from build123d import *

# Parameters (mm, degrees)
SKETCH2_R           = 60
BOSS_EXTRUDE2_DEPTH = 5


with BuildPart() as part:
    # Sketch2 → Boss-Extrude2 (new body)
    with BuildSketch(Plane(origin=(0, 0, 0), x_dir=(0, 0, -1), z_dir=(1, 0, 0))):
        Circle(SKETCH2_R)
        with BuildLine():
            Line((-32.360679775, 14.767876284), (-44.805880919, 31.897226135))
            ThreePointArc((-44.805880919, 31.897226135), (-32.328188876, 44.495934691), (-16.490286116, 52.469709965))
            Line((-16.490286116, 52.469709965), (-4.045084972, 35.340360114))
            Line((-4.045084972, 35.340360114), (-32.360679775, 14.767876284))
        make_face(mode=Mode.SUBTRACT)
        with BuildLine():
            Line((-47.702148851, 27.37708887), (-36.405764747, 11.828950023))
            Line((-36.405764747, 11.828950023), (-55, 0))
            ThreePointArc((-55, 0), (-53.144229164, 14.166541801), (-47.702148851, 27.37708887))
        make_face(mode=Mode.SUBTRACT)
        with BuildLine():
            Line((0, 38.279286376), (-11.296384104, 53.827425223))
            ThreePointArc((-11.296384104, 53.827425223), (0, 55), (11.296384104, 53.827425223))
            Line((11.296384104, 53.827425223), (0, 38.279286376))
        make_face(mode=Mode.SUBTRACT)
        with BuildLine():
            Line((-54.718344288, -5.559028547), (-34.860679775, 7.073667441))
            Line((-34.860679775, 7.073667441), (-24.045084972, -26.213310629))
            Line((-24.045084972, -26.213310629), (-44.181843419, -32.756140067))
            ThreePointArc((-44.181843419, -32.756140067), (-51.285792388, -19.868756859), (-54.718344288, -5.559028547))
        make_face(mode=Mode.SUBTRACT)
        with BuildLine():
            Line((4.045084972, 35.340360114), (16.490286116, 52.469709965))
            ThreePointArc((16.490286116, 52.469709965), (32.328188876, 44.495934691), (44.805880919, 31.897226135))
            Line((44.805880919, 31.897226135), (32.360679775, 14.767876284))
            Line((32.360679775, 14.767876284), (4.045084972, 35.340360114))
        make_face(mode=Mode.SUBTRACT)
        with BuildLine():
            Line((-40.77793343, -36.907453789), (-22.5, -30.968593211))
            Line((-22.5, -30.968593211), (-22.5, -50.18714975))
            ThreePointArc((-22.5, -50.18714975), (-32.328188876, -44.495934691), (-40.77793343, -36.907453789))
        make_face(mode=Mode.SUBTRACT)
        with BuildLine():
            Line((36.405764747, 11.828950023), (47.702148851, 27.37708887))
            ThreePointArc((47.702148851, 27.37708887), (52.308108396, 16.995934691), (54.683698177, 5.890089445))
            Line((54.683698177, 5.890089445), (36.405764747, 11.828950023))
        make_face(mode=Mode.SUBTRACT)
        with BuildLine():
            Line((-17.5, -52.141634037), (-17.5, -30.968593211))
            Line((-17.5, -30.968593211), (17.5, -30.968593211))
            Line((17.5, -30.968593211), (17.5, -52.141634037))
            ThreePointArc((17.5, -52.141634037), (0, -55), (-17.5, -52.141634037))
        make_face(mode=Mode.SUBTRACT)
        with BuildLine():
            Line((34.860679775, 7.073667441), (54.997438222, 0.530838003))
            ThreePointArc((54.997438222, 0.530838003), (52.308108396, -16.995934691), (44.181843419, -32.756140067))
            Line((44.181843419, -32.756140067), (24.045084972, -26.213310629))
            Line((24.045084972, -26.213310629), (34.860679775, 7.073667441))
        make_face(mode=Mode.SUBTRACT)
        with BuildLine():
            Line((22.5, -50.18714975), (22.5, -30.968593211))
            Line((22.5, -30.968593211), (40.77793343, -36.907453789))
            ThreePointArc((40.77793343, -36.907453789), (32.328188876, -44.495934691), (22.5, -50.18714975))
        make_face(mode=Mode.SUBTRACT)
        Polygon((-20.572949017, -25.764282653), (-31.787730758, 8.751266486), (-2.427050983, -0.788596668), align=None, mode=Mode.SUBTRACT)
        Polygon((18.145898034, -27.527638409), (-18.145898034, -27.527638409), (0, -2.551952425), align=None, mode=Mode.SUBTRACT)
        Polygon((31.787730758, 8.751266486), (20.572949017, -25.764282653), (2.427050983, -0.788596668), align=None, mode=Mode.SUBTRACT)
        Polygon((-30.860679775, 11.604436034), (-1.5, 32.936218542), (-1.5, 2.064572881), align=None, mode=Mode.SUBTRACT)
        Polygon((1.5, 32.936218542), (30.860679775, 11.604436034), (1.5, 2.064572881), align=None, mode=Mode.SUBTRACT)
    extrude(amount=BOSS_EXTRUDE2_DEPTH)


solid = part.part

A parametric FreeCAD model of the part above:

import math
import FreeCAD as App
import Part
import Sketcher

doc = App.newDocument("Part")
body = doc.addObject("PartDesign::Body", "Body")

sketch1 = body.newObject("Sketcher::SketchObject", "Sketch")
sketch1.AttachmentSupport = (doc.getObject("YZ_Plane"), [""])
sketch1.MapMode = "FlatFace"
sketch1.addGeometry(Part.Circle(App.Vector(0, 0, 0), App.Vector(0, 0, 1), 60), False)
sketch1.addGeometry(Part.ArcOfCircle(Part.Circle(App.Vector(0, 0, 0), App.Vector(0, 0, 1), 55), math.radians(132.14774), math.radians(155.85226)), False)
sketch1.addGeometry(Part.LineSegment(App.Vector(-36.907454, 40.777933, 0), App.Vector(-30.968593, 22.5, 0)), False)
sketch1.addGeometry(Part.LineSegment(App.Vector(-30.968593, 22.5, 0), App.Vector(-50.18715, 22.5, 0)), False)
sketch1.addGeometry(Part.ArcOfCircle(Part.Circle(App.Vector(0, 0, 0), App.Vector(0, 0, 1), 55), math.radians(95.800976), math.radians(126.553005)), False)
sketch1.addGeometry(Part.LineSegment(App.Vector(-5.559029, 54.718344, 0), App.Vector(7.073667, 34.86068, 0)), False)
sketch1.addGeometry(Part.LineSegment(App.Vector(7.073667, 34.86068, 0), App.Vector(-26.213311, 24.045085, 0)), False)
sketch1.addGeometry(Part.LineSegment(App.Vector(-26.213311, 24.045085, 0), App.Vector(-32.75614, 44.181843, 0)), False)
sketch1.addGeometry(Part.LineSegment(App.Vector(-0.788597, 2.427051, 0), App.Vector(-25.764283, 20.572949, 0)), False)
sketch1.addGeometry(Part.LineSegment(App.Vector(-25.764283, 20.572949, 0), App.Vector(8.751266, 31.787731, 0)), False)
sketch1.addGeometry(Part.LineSegment(App.Vector(8.751266, 31.787731, 0), App.Vector(-0.788597, 2.427051, 0)), False)
sketch1.addGeometry(Part.ArcOfCircle(Part.Circle(App.Vector(0, 0, 0), App.Vector(0, 0, 1), 55), math.radians(161.446995), math.radians(198.553005)), False)
sketch1.addGeometry(Part.LineSegment(App.Vector(-52.141634, 17.5, 0), App.Vector(-30.968593, 17.5, 0)), False)
sketch1.addGeometry(Part.LineSegment(App.Vector(-30.968593, 17.5, 0), App.Vector(-30.968593, -17.5, 0)), False)
sketch1.addGeometry(Part.LineSegment(App.Vector(-30.968593, -17.5, 0), App.Vector(-52.141634, -17.5, 0)), False)
sketch1.addGeometry(Part.ArcOfCircle(Part.Circle(App.Vector(0, 0, 0), App.Vector(0, 0, 1), 55), math.radians(-155.85226), math.radians(-132.14774)), False)
sketch1.addGeometry(Part.LineSegment(App.Vector(-50.18715, -22.5, 0), App.Vector(-30.968593, -22.5, 0)), False)
sketch1.addGeometry(Part.LineSegment(App.Vector(-30.968593, -22.5, 0), App.Vector(-36.907454, -40.777933, 0)), False)
sketch1.addGeometry(Part.LineSegment(App.Vector(-2.551952, 0, 0), App.Vector(-27.527638, -18.145898, 0)), False)
sketch1.addGeometry(Part.LineSegment(App.Vector(-27.527638, -18.145898, 0), App.Vector(-27.527638, 18.145898, 0)), False)
sketch1.addGeometry(Part.LineSegment(App.Vector(-27.527638, 18.145898, 0), App.Vector(-2.551952, 0, 0)), False)
sketch1.addGeometry(Part.LineSegment(App.Vector(-0.788597, -2.427051, 0), App.Vector(8.751266, -31.787731, 0)), False)
sketch1.addGeometry(Part.LineSegment(App.Vector(8.751266, -31.787731, 0), App.Vector(-25.764283, -20.572949, 0)), False)
sketch1.addGeometry(Part.LineSegment(App.Vector(-25.764283, -20.572949, 0), App.Vector(-0.788597, -2.427051, 0)), False)
sketch1.addGeometry(Part.LineSegment(App.Vector(-26.213311, -24.045085, 0), App.Vector(7.073667, -34.86068, 0)), False)
sketch1.addGeometry(Part.LineSegment(App.Vector(7.073667, -34.86068, 0), App.Vector(0.530838, -54.997438, 0)), False)
sketch1.addGeometry(Part.ArcOfCircle(Part.Circle(App.Vector(0, 0, 0), App.Vector(0, 0, 1), 55), math.radians(-126.553005), math.radians(-89.446995)), False)
sketch1.addGeometry(Part.LineSegment(App.Vector(-32.75614, -44.181843, 0), App.Vector(-26.213311, -24.045085, 0)), False)
sketch1.addGeometry(Part.ArcOfCircle(Part.Circle(App.Vector(0, 0, 0), App.Vector(0, 0, 1), 55), math.radians(60.14774), math.radians(90)), False)
sketch1.addGeometry(Part.LineSegment(App.Vector(27.377089, 47.702149, 0), App.Vector(11.82895, 36.405765, 0)), False)
sketch1.addGeometry(Part.LineSegment(App.Vector(11.82895, 36.405765, 0), App.Vector(0, 55, 0)), False)
sketch1.addGeometry(Part.LineSegment(App.Vector(2.064573, 1.5, 0), App.Vector(11.604436, 30.86068, 0)), False)
sketch1.addGeometry(Part.LineSegment(App.Vector(11.604436, 30.86068, 0), App.Vector(32.936219, 1.5, 0)), False)
sketch1.addGeometry(Part.LineSegment(App.Vector(32.936219, 1.5, 0), App.Vector(2.064573, 1.5, 0)), False)
sketch1.addGeometry(Part.LineSegment(App.Vector(35.34036, 4.045085, 0), App.Vector(14.767876, 32.36068, 0)), False)
sketch1.addGeometry(Part.LineSegment(App.Vector(14.767876, 32.36068, 0), App.Vector(31.897226, 44.805881, 0)), False)
sketch1.addGeometry(Part.ArcOfCircle(Part.Circle(App.Vector(0, 0, 0), App.Vector(0, 0, 1), 55), math.radians(17.446995), math.radians(54.553005)), False)
sketch1.addGeometry(Part.LineSegment(App.Vector(52.46971, 16.490286, 0), App.Vector(35.34036, 4.045085, 0)), False)
sketch1.addGeometry(Part.LineSegment(App.Vector(2.064573, -1.5, 0), App.Vector(32.936219, -1.5, 0)), False)
sketch1.addGeometry(Part.LineSegment(App.Vector(32.936219, -1.5, 0), App.Vector(11.604436, -30.86068, 0)), False)
sketch1.addGeometry(Part.LineSegment(App.Vector(11.604436, -30.86068, 0), App.Vector(2.064573, -1.5, 0)), False)
sketch1.addGeometry(Part.LineSegment(App.Vector(5.890089, -54.683698, 0), App.Vector(11.82895, -36.405765, 0)), False)
sketch1.addGeometry(Part.LineSegment(App.Vector(11.82895, -36.405765, 0), App.Vector(27.377089, -47.702149, 0)), False)
sketch1.addGeometry(Part.ArcOfCircle(Part.Circle(App.Vector(0, 0, 0), App.Vector(0, 0, 1), 55), math.radians(-83.85226), math.radians(-60.14774)), False)
sketch1.addGeometry(Part.LineSegment(App.Vector(14.767876, -32.36068, 0), App.Vector(35.34036, -4.045085, 0)), False)
sketch1.addGeometry(Part.LineSegment(App.Vector(35.34036, -4.045085, 0), App.Vector(52.46971, -16.490286, 0)), False)
sketch1.addGeometry(Part.ArcOfCircle(Part.Circle(App.Vector(0, 0, 0), App.Vector(0, 0, 1), 55), math.radians(-54.553005), math.radians(-17.446995)), False)
sketch1.addGeometry(Part.LineSegment(App.Vector(31.897226, -44.805881, 0), App.Vector(14.767876, -32.36068, 0)), False)
sketch1.addGeometry(Part.LineSegment(App.Vector(53.827425, -11.296384, 0), App.Vector(38.279286, 0, 0)), False)
sketch1.addGeometry(Part.LineSegment(App.Vector(38.279286, 0, 0), App.Vector(53.827425, 11.296384, 0)), False)
sketch1.addGeometry(Part.ArcOfCircle(Part.Circle(App.Vector(0, 0, 0), App.Vector(0, 0, 1), 55), math.radians(-11.85226), math.radians(11.85226)), False)
sketch1.addConstraint(Sketcher.Constraint("Coincident", 1, 1, 2, 1))
sketch1.addConstraint(Sketcher.Constraint("Coincident", 2, 2, 3, 1))
sketch1.addConstraint(Sketcher.Constraint("Coincident", 3, 2, 1, 2))
sketch1.addConstraint(Sketcher.Constraint("Coincident", 4, 1, 5, 1))
sketch1.addConstraint(Sketcher.Constraint("Coincident", 5, 2, 6, 1))
sketch1.addConstraint(Sketcher.Constraint("Coincident", 6, 2, 7, 1))
sketch1.addConstraint(Sketcher.Constraint("Coincident", 7, 2, 4, 2))
sketch1.addConstraint(Sketcher.Constraint("Coincident", 8, 2, 9, 1))
sketch1.addConstraint(Sketcher.Constraint("Coincident", 9, 2, 10, 1))
sketch1.addConstraint(Sketcher.Constraint("Coincident", 10, 2, 8, 1))
sketch1.addConstraint(Sketcher.Constraint("Coincident", 11, 1, 12, 1))
sketch1.addConstraint(Sketcher.Constraint("Coincident", 12, 2, 13, 1))
sketch1.addConstraint(Sketcher.Constraint("Coincident", 13, 2, 14, 1))
sketch1.addConstraint(Sketcher.Constraint("Coincident", 14, 2, 11, 2))
sketch1.addConstraint(Sketcher.Constraint("Coincident", 15, 1, 16, 1))
sketch1.addConstraint(Sketcher.Constraint("Coincident", 16, 2, 17, 1))
sketch1.addConstraint(Sketcher.Constraint("Coincident", 17, 2, 15, 2))
sketch1.addConstraint(Sketcher.Constraint("Coincident", 18, 2, 19, 1))
sketch1.addConstraint(Sketcher.Constraint("Coincident", 19, 2, 20, 1))
sketch1.addConstraint(Sketcher.Constraint("Coincident", 20, 2, 18, 1))
sketch1.addConstraint(Sketcher.Constraint("Coincident", 21, 2, 22, 1))
sketch1.addConstraint(Sketcher.Constraint("Coincident", 22, 2, 23, 1))
sketch1.addConstraint(Sketcher.Constraint("Coincident", 23, 2, 21, 1))
sketch1.addConstraint(Sketcher.Constraint("Coincident", 24, 2, 25, 1))
sketch1.addConstraint(Sketcher.Constraint("Coincident", 25, 2, 26, 2))
sketch1.addConstraint(Sketcher.Constraint("Coincident", 26, 1, 27, 1))
sketch1.addConstraint(Sketcher.Constraint("Coincident", 27, 2, 24, 1))
sketch1.addConstraint(Sketcher.Constraint("Coincident", 28, 1, 29, 1))
sketch1.addConstraint(Sketcher.Constraint("Coincident", 29, 2, 30, 1))
sketch1.addConstraint(Sketcher.Constraint("Coincident", 30, 2, 28, 2))
sketch1.addConstraint(Sketcher.Constraint("Coincident", 31, 2, 32, 1))
sketch1.addConstraint(Sketcher.Constraint("Coincident", 32, 2, 33, 1))
sketch1.addConstraint(Sketcher.Constraint("Coincident", 33, 2, 31, 1))
sketch1.addConstraint(Sketcher.Constraint("Coincident", 34, 2, 35, 1))
sketch1.addConstraint(Sketcher.Constraint("Coincident", 35, 2, 36, 2))
sketch1.addConstraint(Sketcher.Constraint("Coincident", 36, 1, 37, 1))
sketch1.addConstraint(Sketcher.Constraint("Coincident", 37, 2, 34, 1))
sketch1.addConstraint(Sketcher.Constraint("Coincident", 38, 2, 39, 1))
sketch1.addConstraint(Sketcher.Constraint("Coincident", 39, 2, 40, 1))
sketch1.addConstraint(Sketcher.Constraint("Coincident", 40, 2, 38, 1))
sketch1.addConstraint(Sketcher.Constraint("Coincident", 41, 2, 42, 1))
sketch1.addConstraint(Sketcher.Constraint("Coincident", 42, 2, 43, 2))
sketch1.addConstraint(Sketcher.Constraint("Coincident", 43, 1, 41, 1))
sketch1.addConstraint(Sketcher.Constraint("Coincident", 44, 2, 45, 1))
sketch1.addConstraint(Sketcher.Constraint("Coincident", 45, 2, 46, 2))
sketch1.addConstraint(Sketcher.Constraint("Coincident", 46, 1, 47, 1))
sketch1.addConstraint(Sketcher.Constraint("Coincident", 47, 2, 44, 1))
sketch1.addConstraint(Sketcher.Constraint("Coincident", 48, 2, 49, 1))
sketch1.addConstraint(Sketcher.Constraint("Coincident", 49, 2, 50, 2))
sketch1.addConstraint(Sketcher.Constraint("Coincident", 50, 1, 48, 1))
sketch1.addConstraint(Sketcher.Constraint("Horizontal", 3))
sketch1.addConstraint(Sketcher.Constraint("Horizontal", 12))
sketch1.addConstraint(Sketcher.Constraint("Vertical", 13))
sketch1.addConstraint(Sketcher.Constraint("Horizontal", 14))
sketch1.addConstraint(Sketcher.Constraint("Horizontal", 16))
sketch1.addConstraint(Sketcher.Constraint("Vertical", 19))
sketch1.addConstraint(Sketcher.Constraint("Horizontal", 33))
sketch1.addConstraint(Sketcher.Constraint("Horizontal", 38))
sketch1.addConstraint(Sketcher.Constraint("Coincident", 0, 3, -1, 1))
sketch1.addConstraint(Sketcher.Constraint("Coincident", 1, 3, -1, 1))
sketch1.addConstraint(Sketcher.Constraint("Coincident", 4, 3, -1, 1))
sketch1.addConstraint(Sketcher.Constraint("Coincident", 11, 3, -1, 1))
sketch1.addConstraint(Sketcher.Constraint("Coincident", 15, 3, -1, 1))
sketch1.addConstraint(Sketcher.Constraint("Coincident", 26, 3, -1, 1))
sketch1.addConstraint(Sketcher.Constraint("Coincident", 28, 3, -1, 1))
sketch1.addConstraint(Sketcher.Constraint("Coincident", 36, 3, -1, 1))
sketch1.addConstraint(Sketcher.Constraint("Coincident", 43, 3, -1, 1))
sketch1.addConstraint(Sketcher.Constraint("Coincident", 46, 3, -1, 1))
sketch1.addConstraint(Sketcher.Constraint("Coincident", 50, 3, -1, 1))
sketch1.addConstraint(Sketcher.Constraint("Equal", 1, 4))
sketch1.addConstraint(Sketcher.Constraint("Equal", 4, 11))
sketch1.addConstraint(Sketcher.Constraint("Equal", 11, 15))
sketch1.addConstraint(Sketcher.Constraint("Equal", 15, 26))
sketch1.addConstraint(Sketcher.Constraint("Equal", 26, 28))
sketch1.addConstraint(Sketcher.Constraint("Equal", 28, 36))
sketch1.addConstraint(Sketcher.Constraint("Equal", 36, 43))
sketch1.addConstraint(Sketcher.Constraint("Equal", 43, 46))
sketch1.addConstraint(Sketcher.Constraint("Equal", 46, 50))
sketch1.addConstraint(Sketcher.Constraint("Symmetric", 2, 2, 16, 2, -1))
sketch1.addConstraint(Sketcher.Constraint("Symmetric", 9, 2, 21, 2, -1))
sketch1.addConstraint(Sketcher.Constraint("Symmetric", 8, 2, 22, 2, -1))
sketch1.addConstraint(Sketcher.Constraint("Symmetric", 10, 2, 23, 2, -1))
sketch1.addConstraint(Sketcher.Constraint("Symmetric", 5, 2, 24, 2, -1))
sketch1.addConstraint(Sketcher.Constraint("Symmetric", 6, 2, 27, 2, -1))
sketch1.addConstraint(Sketcher.Constraint("Symmetric", 32, 2, 38, 2, -1))
sketch1.addConstraint(Sketcher.Constraint("Symmetric", 31, 2, 39, 2, -1))
sketch1.addConstraint(Sketcher.Constraint("Symmetric", 29, 2, 41, 2, -1))
sketch1.addConstraint(Sketcher.Constraint("Symmetric", 37, 2, 44, 2, -1))
sketch1.addConstraint(Sketcher.Constraint("Symmetric", 34, 2, 47, 2, -1))
sketch1.addConstraint(Sketcher.Constraint("PointOnObject", 20, 2, -1))
sketch1.addConstraint(Sketcher.Constraint("PointOnObject", 30, 2, -2))
sketch1.addConstraint(Sketcher.Constraint("PointOnObject", 48, 2, -1))
sketch1.addConstraint(Sketcher.Constraint("Perpendicular", 2, 6))
sketch1.addConstraint(Sketcher.Constraint("Perpendicular", 6, 7))
sketch1.addConstraint(Sketcher.Constraint("Perpendicular", 7, 9))
sketch1.addConstraint(Sketcher.Constraint("Parallel", 10, 17))
sketch1.addConstraint(Sketcher.Constraint("Parallel", 8, 20))
sketch1.addConstraint(Sketcher.Constraint("Perpendicular", 9, 21))
sketch1.addConstraint(Sketcher.Constraint("Parallel", 18, 23))
sketch1.addConstraint(Sketcher.Constraint("Perpendicular", 24, 25))
sketch1.addConstraint(Sketcher.Constraint("Parallel", 25, 27))
sketch1.addConstraint(Sketcher.Constraint("Parallel", 23, 29))
sketch1.addConstraint(Sketcher.Constraint("Parallel", 5, 30))
sketch1.addConstraint(Sketcher.Constraint("Parallel", 27, 31))
sketch1.addConstraint(Sketcher.Constraint("Perpendicular", 29, 32))
sketch1.addConstraint(Sketcher.Constraint("Parallel", 32, 34))
sketch1.addConstraint(Sketcher.Constraint("Perpendicular", 34, 35))
sketch1.addConstraint(Sketcher.Constraint("Parallel", 35, 37))
sketch1.addConstraint(Sketcher.Constraint("Parallel", 21, 40))
sketch1.addConstraint(Sketcher.Constraint("Parallel", 31, 41))
sketch1.addConstraint(Sketcher.Constraint("Perpendicular", 39, 42))
sketch1.addConstraint(Sketcher.Constraint("Perpendicular", 44, 45))
sketch1.addConstraint(Sketcher.Constraint("Parallel", 45, 47))
sketch1.addConstraint(Sketcher.Constraint("Parallel", 47, 48))
sketch1.addConstraint(Sketcher.Constraint("Parallel", 37, 49))
sketch1.addConstraint(Sketcher.Constraint("Vertical", 2, 2, 12, 2))
sketch1.addConstraint(Sketcher.Constraint("Vertical", 11, 1, 14, 2))
sketch1.addConstraint(Sketcher.Constraint("Equal", 8, 10))
sketch1.addConstraint(Sketcher.Constraint("Equal", 10, 18))
sketch1.addConstraint(Sketcher.Constraint("Equal", 7, 25))
sketch1.addConstraint(Sketcher.Constraint("Equal", 17, 29))
sketch1.addConstraint(Sketcher.Constraint("Equal", 23, 31))
sketch1.addConstraint(Sketcher.Constraint("Equal", 22, 32))
sketch1.addConstraint(Sketcher.Constraint("Equal", 24, 34))
sketch1.addConstraint(Sketcher.Constraint("Equal", 27, 35))
sketch1.addConstraint(Sketcher.Constraint("Equal", 35, 37))
sketch1.addConstraint(Sketcher.Constraint("Equal", 29, 41))
sketch1.addConstraint(Sketcher.Constraint("Equal", 42, 48))
sketch1.addConstraint(Sketcher.Constraint("Diameter", 0, 120.0))
sketch1.addConstraint(Sketcher.Constraint("Radius", 1, 55.0))
sketch1.addConstraint(Sketcher.Constraint("DistanceY", 13, 2, 13, 1, 35.0))
sketch1.addConstraint(Sketcher.Constraint("Distance", 6, 35.0))
sketch1.addConstraint(Sketcher.Constraint("DistanceY", -1, 1, 2, 2, 22.5))
sketch1.addConstraint(Sketcher.Constraint("DistanceY", -1, 1, 32, 2, 1.5))
sketch1.addConstraint(Sketcher.Constraint("DistanceX", 12, 1, 12, 2, 21.173041))
sketch1.addConstraint(Sketcher.Constraint("DistanceY", 18, 2, -1, 1, 18.145898))
sketch1.addConstraint(Sketcher.Constraint("Distance", 5, 23.535332))
sketch1.addConstraint(Sketcher.Constraint("DistanceY", -1, 1, 8, 2, 20.572949))
sketch1.addConstraint(Sketcher.Constraint("DistanceX", 18, 2, -1, 1, 27.527638))
sketch1.addConstraint(Sketcher.Constraint("DistanceX", -1, 1, 32, 2, 32.936219))
sketch1.addConstraint(Sketcher.Constraint("DistanceX", 8, 2, -1, 1, 25.764283))
pad1 = body.newObject("PartDesign::Pad", "Pad")
pad1.Profile = sketch1
pad1.Length = 5

doc.recompute()
